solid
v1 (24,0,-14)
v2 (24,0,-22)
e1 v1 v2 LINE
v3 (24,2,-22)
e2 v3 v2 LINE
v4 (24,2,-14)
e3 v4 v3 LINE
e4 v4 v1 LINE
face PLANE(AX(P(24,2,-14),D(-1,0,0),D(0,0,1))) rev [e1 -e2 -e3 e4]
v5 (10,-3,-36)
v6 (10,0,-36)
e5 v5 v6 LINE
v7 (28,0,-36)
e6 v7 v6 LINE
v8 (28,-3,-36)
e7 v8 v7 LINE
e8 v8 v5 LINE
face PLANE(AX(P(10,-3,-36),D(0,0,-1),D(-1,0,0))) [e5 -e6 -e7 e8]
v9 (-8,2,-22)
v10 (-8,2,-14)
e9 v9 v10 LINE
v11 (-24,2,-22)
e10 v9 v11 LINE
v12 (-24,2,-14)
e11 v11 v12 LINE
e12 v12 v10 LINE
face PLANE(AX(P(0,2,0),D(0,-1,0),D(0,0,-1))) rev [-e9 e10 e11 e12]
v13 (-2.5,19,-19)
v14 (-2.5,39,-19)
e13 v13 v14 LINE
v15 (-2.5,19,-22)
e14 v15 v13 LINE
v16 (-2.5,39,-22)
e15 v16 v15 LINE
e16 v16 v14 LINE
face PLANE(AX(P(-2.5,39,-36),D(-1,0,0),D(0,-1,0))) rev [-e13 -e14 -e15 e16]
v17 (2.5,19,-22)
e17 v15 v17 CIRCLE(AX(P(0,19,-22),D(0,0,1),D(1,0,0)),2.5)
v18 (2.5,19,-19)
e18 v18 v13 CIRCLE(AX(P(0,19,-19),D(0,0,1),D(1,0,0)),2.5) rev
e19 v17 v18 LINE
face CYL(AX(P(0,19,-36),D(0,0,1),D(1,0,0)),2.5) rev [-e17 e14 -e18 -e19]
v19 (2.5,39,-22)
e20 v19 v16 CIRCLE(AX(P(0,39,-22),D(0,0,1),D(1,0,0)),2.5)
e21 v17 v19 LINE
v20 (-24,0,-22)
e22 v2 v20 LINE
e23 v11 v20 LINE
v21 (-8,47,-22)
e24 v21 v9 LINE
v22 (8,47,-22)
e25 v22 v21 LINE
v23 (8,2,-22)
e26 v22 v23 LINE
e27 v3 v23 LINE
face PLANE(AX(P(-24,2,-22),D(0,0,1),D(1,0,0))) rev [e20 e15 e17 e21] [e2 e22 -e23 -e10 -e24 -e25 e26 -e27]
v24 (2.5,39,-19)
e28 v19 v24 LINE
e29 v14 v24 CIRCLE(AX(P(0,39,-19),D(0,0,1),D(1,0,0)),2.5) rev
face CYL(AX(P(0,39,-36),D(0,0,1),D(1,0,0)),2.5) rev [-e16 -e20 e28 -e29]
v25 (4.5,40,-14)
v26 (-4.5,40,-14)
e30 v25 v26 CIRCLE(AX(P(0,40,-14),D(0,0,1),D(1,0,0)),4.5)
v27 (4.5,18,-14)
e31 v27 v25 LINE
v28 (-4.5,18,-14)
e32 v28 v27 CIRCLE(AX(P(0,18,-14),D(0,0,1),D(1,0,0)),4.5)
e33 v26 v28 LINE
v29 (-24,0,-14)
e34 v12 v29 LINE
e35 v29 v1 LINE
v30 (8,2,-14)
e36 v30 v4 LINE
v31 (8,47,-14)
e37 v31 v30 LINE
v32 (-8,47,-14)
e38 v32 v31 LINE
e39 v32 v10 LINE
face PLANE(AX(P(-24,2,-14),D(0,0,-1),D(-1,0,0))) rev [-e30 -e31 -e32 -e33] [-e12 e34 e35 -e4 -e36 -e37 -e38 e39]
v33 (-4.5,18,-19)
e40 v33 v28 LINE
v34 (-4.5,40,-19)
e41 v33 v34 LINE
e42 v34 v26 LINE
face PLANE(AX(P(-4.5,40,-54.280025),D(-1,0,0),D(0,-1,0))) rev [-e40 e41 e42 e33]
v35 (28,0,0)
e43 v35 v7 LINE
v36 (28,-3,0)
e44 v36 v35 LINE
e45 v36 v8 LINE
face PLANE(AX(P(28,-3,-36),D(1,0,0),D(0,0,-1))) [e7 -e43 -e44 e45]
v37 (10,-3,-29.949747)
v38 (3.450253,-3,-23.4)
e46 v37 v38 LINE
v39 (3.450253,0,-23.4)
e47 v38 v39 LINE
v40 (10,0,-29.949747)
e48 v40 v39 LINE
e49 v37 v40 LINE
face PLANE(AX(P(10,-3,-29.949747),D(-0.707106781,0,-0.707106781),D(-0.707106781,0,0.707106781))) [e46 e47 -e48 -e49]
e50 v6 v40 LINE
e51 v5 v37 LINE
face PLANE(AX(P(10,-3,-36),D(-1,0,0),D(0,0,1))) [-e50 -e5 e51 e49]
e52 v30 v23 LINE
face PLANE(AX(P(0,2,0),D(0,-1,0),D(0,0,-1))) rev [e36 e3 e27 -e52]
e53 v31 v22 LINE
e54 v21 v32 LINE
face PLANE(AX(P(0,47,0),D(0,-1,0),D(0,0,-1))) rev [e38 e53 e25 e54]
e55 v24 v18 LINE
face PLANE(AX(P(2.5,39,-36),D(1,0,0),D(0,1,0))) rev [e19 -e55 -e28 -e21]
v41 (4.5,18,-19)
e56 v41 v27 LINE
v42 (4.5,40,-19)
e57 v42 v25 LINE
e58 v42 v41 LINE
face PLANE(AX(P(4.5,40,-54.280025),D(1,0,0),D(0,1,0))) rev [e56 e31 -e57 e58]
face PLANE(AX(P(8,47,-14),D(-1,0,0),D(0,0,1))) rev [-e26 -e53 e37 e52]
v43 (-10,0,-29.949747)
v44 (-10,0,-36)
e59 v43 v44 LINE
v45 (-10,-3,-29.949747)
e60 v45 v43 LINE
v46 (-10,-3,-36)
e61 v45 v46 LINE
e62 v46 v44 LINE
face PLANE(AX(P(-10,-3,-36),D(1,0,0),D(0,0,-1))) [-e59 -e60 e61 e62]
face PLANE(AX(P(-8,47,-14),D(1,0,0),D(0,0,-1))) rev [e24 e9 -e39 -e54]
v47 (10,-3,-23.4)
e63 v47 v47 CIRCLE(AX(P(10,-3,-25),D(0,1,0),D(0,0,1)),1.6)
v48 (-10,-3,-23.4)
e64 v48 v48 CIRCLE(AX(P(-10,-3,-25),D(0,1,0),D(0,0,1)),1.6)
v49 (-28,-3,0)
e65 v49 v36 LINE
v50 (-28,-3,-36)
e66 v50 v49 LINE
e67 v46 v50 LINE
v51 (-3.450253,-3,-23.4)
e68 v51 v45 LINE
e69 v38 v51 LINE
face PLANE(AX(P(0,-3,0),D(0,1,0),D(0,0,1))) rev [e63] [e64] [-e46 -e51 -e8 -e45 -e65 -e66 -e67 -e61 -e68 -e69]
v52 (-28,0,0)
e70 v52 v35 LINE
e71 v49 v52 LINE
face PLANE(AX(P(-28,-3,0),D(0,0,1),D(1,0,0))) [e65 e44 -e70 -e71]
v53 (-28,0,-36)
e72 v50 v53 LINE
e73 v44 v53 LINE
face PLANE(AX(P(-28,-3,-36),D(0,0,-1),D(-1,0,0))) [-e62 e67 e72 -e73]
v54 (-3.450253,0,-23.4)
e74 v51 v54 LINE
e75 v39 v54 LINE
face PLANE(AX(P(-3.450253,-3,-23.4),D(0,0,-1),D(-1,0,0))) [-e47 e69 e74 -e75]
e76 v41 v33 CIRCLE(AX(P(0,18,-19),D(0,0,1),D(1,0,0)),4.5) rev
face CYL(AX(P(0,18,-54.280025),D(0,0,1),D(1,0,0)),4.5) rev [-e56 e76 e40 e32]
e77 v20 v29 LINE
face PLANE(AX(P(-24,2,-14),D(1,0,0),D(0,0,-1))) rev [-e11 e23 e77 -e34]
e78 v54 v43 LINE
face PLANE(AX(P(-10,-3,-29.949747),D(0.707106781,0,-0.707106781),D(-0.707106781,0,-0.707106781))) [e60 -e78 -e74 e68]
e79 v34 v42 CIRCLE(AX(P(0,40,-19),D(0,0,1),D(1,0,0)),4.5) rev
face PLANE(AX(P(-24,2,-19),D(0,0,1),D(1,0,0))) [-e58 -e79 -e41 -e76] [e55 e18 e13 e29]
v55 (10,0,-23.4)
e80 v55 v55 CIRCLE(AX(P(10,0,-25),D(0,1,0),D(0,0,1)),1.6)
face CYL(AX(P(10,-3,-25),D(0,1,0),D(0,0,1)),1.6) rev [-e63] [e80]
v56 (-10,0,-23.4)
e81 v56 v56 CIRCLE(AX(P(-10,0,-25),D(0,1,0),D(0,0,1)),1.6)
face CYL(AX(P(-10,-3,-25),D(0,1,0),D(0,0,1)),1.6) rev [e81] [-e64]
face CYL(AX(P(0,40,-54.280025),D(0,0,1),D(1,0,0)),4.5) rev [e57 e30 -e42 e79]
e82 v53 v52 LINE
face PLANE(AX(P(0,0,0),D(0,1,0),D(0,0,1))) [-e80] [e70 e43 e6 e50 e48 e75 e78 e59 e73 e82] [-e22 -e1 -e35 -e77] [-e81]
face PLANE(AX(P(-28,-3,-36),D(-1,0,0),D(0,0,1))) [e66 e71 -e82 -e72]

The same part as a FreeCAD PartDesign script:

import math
import FreeCAD as App
import Part
import Sketcher
Q = App.Units.Quantity


def add_polygon(sketch, points):
    """Adds a closed chain of lines whose ends are joined by coincident constraints."""
    first, n = sketch.GeometryCount, len(points)
    for a, b in zip(points, points[1:] + points[:1]):
        sketch.addGeometry(Part.LineSegment(App.Vector(*a, 0), App.Vector(*b, 0)), False)
    for i in range(n):
        sketch.addConstraint(Sketcher.Constraint("Coincident", first + i, 2, first + (i + 1) % n, 1))

doc = App.newDocument("Part")
body = doc.addObject("PartDesign::Body", "Body")

sketch1 = doc.addObject("Sketcher::SketchObject", "Sketch")
body.addObject(sketch1)
sketch1.AttachmentSupport = (doc.XZ_Plane, [""])
sketch1.MapMode = "FlatFace"
add_polygon(sketch1, [(-10, -36), (-28, -36), (-28, 0), (28, 0), (28, -36), (10, -36), (10, -29.9), (3.5, -23.4), (-3.5, -23.4), (-10, -29.9)])
sketch1.addGeometry(Part.Circle(App.Vector(10, -25, 0), App.Vector(0, 0, 1), 1.6), False)
sketch1.addGeometry(Part.Circle(App.Vector(-10, -25, 0), App.Vector(0, 0, 1), 1.6), False)
sketch1.addConstraint(Sketcher.Constraint("Horizontal", 0))
sketch1.addConstraint(Sketcher.Constraint("Vertical", 1))
sketch1.addConstraint(Sketcher.Constraint("Horizontal", 2))
sketch1.addConstraint(Sketcher.Constraint("Vertical", 3))
sketch1.addConstraint(Sketcher.Constraint("Horizontal", 4))
sketch1.addConstraint(Sketcher.Constraint("Vertical", 5))
sketch1.addConstraint(Sketcher.Constraint("Horizontal", 7))
sketch1.addConstraint(Sketcher.Constraint("Vertical", 9))
sketch1.addConstraint(Sketcher.Constraint("Equal", 10, 11))
sketch1.addConstraint(Sketcher.Constraint("Symmetric", 1, 2, 2, 2, -1, 1))
sketch1.addConstraint(Sketcher.Constraint("Symmetric", 10, 3, 11, 3, -2))
sketch1.addConstraint(Sketcher.Constraint("Symmetric", 5, 2, 8, 2, -2))
sketch1.addConstraint(Sketcher.Constraint("Perpendicular", 6, 8))
sketch1.addConstraint(Sketcher.Constraint("Horizontal", 0, 2, 3, 2))
sketch1.addConstraint(Sketcher.Constraint("Vertical", 10, 3, 4, 2))
sketch1.addConstraint(Sketcher.Constraint("Equal", 6, 8))
sketch1.addConstraint(Sketcher.Constraint("Diameter", 10, Q("3.2 mm")))
sketch1.addConstraint(Sketcher.Constraint("DistanceX", 0, 2, 0, 1, Q("18 mm")))
sketch1.addConstraint(Sketcher.Constraint("DistanceX", 2, 1, 2, 2, Q("56 mm")))
sketch1.addConstraint(Sketcher.Constraint("DistanceY", 1, 1, 1, 2, Q("36 mm")))
sketch1.addConstraint(Sketcher.Constraint("DistanceY", 10, 3, -1, 1, Q("25 mm")))
sketch1.addConstraint(Sketcher.Constraint("DistanceY", 6, 2, -1, 1, Q("23.4 mm")))
sketch1.addConstraint(Sketcher.Constraint("Distance", 6, Q("9.262742 mm")))
pad1 = doc.addObject("PartDesign::Pad", "Pad")
body.addObject(pad1)
pad1.Profile = sketch1
pad1.Length = 3

sketch2 = doc.addObject("Sketcher::SketchObject", "Sketch001")
body.addObject(sketch2)
sketch2.AttachmentSupport = (doc.XZ_Plane, [""])
sketch2.MapMode = "FlatFace"
add_polygon(sketch2, [(-24, -22), (-24, -14), (24, -14), (24, -22)])
sketch2.addConstraint(Sketcher.Constraint("Vertical", 0))
sketch2.addConstraint(Sketcher.Constraint("Horizontal", 1))
sketch2.addConstraint(Sketcher.Constraint("Vertical", 2))
sketch2.addConstraint(Sketcher.Constraint("Horizontal", 3))
sketch2.addConstraint(Sketcher.Constraint("DistanceX", 1, 1, 1, 2, Q("48 mm")))
sketch2.addConstraint(Sketcher.Constraint("DistanceY", 0, 1, 0, 2, Q("8 mm")))
sketch2.addConstraint(Sketcher.Constraint("DistanceX", 0, 2, -1, 1, Q("24 mm")))
sketch2.addConstraint(Sketcher.Constraint("DistanceY", 0, 2, -1, 1, Q("14 mm")))
pad2 = doc.addObject("PartDesign::Pad", "Pad001")
body.addObject(pad2)
pad2.Profile = sketch2
pad2.Length = 2
pad2.Reversed = True

sketch3 = doc.addObject("Sketcher::SketchObject", "Sketch002")
body.addObject(sketch3)
sketch3.AttachmentSupport = (doc.XZ_Plane, [""])
sketch3.MapMode = "FlatFace"
sketch3.AttachmentOffset = App.Placement(App.Vector(0, 0, -2), App.Rotation())
add_polygon(sketch3, [(-8, -22), (-8, -14), (8, -14), (8, -22)])
sketch3.addConstraint(Sketcher.Constraint("Vertical", 0))
sketch3.addConstraint(Sketcher.Constraint("Horizontal", 1))
sketch3.addConstraint(Sketcher.Constraint("Vertical", 2))
sketch3.addConstraint(Sketcher.Constraint("Horizontal", 3))
sketch3.addConstraint(Sketcher.Constraint("DistanceX", 1, 1, 1, 2, Q("16 mm")))
sketch3.addConstraint(Sketcher.Constraint("DistanceY", 0, 1, 0, 2, Q("8 mm")))
sketch3.addConstraint(Sketcher.Constraint("DistanceX", 0, 2, -1, 1, Q("8 mm")))
sketch3.addConstraint(Sketcher.Constraint("DistanceY", 0, 2, -1, 1, Q("14 mm")))
pad3 = doc.addObject("PartDesign::Pad", "Pad002")
body.addObject(pad3)
pad3.Profile = sketch3
pad3.Length = 45
pad3.Reversed = True

sketch4 = doc.addObject("Sketcher::SketchObject", "Sketch003")
body.addObject(sketch4)
sketch4.AttachmentSupport = (doc.XY_Plane, [""])
sketch4.MapMode = "FlatFace"
sketch4.AttachmentOffset = App.Placement(App.Vector(0, 0, -14), App.Rotation())
sketch4.addGeometry(Part.LineSegment(App.Vector(2.5, 19, 0), App.Vector(2.5, 39, 0)), False)
sketch4.addGeometry(Part.ArcOfCircle(Part.Circle(App.Vector(0, 39, 0), App.Vector(0, 0, 1), 2.5), math.radians(0), math.radians(180)), False)
sketch4.addGeometry(Part.LineSegment(App.Vector(-2.5, 39, 0), App.Vector(-2.5, 19, 0)), False)
sketch4.addGeometry(Part.ArcOfCircle(Part.Circle(App.Vector(0, 19, 0), App.Vector(0, 0, 1), 2.5), math.radians(180), math.radians(360)), False)
sketch4.addConstraint(Sketcher.Constraint("Tangent", 0, 2, 1, 1))
sketch4.addConstraint(Sketcher.Constraint("Tangent", 1, 2, 2, 1))
sketch4.addConstraint(Sketcher.Constraint("Tangent", 2, 2, 3, 1))
sketch4.addConstraint(Sketcher.Constraint("Tangent", 3, 2, 0, 1))
sketch4.addConstraint(Sketcher.Constraint("Vertical", 0))
sketch4.addConstraint(Sketcher.Constraint("Vertical", 2))
sketch4.addConstraint(Sketcher.Constraint("PointOnObject", 1, 3, -2))
sketch4.addConstraint(Sketcher.Constraint("Radius", 1, Q("2.5 mm")))
sketch4.addConstraint(Sketcher.Constraint("DistanceY", 0, 1, 0, 2, Q("20 mm")))
sketch4.addConstraint(Sketcher.Constraint("DistanceY", -1, 1, 1, 3, Q("39 mm")))
pocket1 = doc.addObject("PartDesign::Pocket", "Pocket")
body.addObject(pocket1)
pocket1.Profile = sketch4
pocket1.Type = "ThroughAll"

sketch5 = doc.addObject("Sketcher::SketchObject", "Sketch004")
body.addObject(sketch5)
sketch5.AttachmentSupport = (doc.XY_Plane, [""])
sketch5.MapMode = "FlatFace"
sketch5.AttachmentOffset = App.Placement(App.Vector(0, 0, -14), App.Rotation())
sketch5.addGeometry(Part.LineSegment(App.Vector(4.5, 18, 0), App.Vector(4.5, 40, 0)), False)
sketch5.addGeometry(Part.ArcOfCircle(Part.Circle(App.Vector(0, 40, 0), App.Vector(0, 0, 1), 4.5), math.radians(0), math.radians(180)), False)
sketch5.addGeometry(Part.LineSegment(App.Vector(-4.5, 40, 0), App.Vector(-4.5, 18, 0)), False)
sketch5.addGeometry(Part.ArcOfCircle(Part.Circle(App.Vector(0, 18, 0), App.Vector(0, 0, 1), 4.5), math.radians(180), math.radians(360)), False)
sketch5.addConstraint(Sketcher.Constraint("Tangent", 0, 2, 1, 1))
sketch5.addConstraint(Sketcher.Constraint("Tangent", 1, 2, 2, 1))
sketch5.addConstraint(Sketcher.Constraint("Tangent", 2, 2, 3, 1))
sketch5.addConstraint(Sketcher.Constraint("Tangent", 3, 2, 0, 1))
sketch5.addConstraint(Sketcher.Constraint("Vertical", 0))
sketch5.addConstraint(Sketcher.Constraint("Vertical", 2))
sketch5.addConstraint(Sketcher.Constraint("PointOnObject", 1, 3, -2))
sketch5.addConstraint(Sketcher.Constraint("Radius", 1, Q("4.5 mm")))
sketch5.addConstraint(Sketcher.Constraint("DistanceY", 0, 1, 0, 2, Q("22 mm")))
sketch5.addConstraint(Sketcher.Constraint("DistanceY", -1, 1, 1, 3, Q("40 mm")))
pocket2 = doc.addObject("PartDesign::Pocket", "Pocket001")
body.addObject(pocket2)
pocket2.Profile = sketch5
pocket2.Length = 5

doc.recompute()
